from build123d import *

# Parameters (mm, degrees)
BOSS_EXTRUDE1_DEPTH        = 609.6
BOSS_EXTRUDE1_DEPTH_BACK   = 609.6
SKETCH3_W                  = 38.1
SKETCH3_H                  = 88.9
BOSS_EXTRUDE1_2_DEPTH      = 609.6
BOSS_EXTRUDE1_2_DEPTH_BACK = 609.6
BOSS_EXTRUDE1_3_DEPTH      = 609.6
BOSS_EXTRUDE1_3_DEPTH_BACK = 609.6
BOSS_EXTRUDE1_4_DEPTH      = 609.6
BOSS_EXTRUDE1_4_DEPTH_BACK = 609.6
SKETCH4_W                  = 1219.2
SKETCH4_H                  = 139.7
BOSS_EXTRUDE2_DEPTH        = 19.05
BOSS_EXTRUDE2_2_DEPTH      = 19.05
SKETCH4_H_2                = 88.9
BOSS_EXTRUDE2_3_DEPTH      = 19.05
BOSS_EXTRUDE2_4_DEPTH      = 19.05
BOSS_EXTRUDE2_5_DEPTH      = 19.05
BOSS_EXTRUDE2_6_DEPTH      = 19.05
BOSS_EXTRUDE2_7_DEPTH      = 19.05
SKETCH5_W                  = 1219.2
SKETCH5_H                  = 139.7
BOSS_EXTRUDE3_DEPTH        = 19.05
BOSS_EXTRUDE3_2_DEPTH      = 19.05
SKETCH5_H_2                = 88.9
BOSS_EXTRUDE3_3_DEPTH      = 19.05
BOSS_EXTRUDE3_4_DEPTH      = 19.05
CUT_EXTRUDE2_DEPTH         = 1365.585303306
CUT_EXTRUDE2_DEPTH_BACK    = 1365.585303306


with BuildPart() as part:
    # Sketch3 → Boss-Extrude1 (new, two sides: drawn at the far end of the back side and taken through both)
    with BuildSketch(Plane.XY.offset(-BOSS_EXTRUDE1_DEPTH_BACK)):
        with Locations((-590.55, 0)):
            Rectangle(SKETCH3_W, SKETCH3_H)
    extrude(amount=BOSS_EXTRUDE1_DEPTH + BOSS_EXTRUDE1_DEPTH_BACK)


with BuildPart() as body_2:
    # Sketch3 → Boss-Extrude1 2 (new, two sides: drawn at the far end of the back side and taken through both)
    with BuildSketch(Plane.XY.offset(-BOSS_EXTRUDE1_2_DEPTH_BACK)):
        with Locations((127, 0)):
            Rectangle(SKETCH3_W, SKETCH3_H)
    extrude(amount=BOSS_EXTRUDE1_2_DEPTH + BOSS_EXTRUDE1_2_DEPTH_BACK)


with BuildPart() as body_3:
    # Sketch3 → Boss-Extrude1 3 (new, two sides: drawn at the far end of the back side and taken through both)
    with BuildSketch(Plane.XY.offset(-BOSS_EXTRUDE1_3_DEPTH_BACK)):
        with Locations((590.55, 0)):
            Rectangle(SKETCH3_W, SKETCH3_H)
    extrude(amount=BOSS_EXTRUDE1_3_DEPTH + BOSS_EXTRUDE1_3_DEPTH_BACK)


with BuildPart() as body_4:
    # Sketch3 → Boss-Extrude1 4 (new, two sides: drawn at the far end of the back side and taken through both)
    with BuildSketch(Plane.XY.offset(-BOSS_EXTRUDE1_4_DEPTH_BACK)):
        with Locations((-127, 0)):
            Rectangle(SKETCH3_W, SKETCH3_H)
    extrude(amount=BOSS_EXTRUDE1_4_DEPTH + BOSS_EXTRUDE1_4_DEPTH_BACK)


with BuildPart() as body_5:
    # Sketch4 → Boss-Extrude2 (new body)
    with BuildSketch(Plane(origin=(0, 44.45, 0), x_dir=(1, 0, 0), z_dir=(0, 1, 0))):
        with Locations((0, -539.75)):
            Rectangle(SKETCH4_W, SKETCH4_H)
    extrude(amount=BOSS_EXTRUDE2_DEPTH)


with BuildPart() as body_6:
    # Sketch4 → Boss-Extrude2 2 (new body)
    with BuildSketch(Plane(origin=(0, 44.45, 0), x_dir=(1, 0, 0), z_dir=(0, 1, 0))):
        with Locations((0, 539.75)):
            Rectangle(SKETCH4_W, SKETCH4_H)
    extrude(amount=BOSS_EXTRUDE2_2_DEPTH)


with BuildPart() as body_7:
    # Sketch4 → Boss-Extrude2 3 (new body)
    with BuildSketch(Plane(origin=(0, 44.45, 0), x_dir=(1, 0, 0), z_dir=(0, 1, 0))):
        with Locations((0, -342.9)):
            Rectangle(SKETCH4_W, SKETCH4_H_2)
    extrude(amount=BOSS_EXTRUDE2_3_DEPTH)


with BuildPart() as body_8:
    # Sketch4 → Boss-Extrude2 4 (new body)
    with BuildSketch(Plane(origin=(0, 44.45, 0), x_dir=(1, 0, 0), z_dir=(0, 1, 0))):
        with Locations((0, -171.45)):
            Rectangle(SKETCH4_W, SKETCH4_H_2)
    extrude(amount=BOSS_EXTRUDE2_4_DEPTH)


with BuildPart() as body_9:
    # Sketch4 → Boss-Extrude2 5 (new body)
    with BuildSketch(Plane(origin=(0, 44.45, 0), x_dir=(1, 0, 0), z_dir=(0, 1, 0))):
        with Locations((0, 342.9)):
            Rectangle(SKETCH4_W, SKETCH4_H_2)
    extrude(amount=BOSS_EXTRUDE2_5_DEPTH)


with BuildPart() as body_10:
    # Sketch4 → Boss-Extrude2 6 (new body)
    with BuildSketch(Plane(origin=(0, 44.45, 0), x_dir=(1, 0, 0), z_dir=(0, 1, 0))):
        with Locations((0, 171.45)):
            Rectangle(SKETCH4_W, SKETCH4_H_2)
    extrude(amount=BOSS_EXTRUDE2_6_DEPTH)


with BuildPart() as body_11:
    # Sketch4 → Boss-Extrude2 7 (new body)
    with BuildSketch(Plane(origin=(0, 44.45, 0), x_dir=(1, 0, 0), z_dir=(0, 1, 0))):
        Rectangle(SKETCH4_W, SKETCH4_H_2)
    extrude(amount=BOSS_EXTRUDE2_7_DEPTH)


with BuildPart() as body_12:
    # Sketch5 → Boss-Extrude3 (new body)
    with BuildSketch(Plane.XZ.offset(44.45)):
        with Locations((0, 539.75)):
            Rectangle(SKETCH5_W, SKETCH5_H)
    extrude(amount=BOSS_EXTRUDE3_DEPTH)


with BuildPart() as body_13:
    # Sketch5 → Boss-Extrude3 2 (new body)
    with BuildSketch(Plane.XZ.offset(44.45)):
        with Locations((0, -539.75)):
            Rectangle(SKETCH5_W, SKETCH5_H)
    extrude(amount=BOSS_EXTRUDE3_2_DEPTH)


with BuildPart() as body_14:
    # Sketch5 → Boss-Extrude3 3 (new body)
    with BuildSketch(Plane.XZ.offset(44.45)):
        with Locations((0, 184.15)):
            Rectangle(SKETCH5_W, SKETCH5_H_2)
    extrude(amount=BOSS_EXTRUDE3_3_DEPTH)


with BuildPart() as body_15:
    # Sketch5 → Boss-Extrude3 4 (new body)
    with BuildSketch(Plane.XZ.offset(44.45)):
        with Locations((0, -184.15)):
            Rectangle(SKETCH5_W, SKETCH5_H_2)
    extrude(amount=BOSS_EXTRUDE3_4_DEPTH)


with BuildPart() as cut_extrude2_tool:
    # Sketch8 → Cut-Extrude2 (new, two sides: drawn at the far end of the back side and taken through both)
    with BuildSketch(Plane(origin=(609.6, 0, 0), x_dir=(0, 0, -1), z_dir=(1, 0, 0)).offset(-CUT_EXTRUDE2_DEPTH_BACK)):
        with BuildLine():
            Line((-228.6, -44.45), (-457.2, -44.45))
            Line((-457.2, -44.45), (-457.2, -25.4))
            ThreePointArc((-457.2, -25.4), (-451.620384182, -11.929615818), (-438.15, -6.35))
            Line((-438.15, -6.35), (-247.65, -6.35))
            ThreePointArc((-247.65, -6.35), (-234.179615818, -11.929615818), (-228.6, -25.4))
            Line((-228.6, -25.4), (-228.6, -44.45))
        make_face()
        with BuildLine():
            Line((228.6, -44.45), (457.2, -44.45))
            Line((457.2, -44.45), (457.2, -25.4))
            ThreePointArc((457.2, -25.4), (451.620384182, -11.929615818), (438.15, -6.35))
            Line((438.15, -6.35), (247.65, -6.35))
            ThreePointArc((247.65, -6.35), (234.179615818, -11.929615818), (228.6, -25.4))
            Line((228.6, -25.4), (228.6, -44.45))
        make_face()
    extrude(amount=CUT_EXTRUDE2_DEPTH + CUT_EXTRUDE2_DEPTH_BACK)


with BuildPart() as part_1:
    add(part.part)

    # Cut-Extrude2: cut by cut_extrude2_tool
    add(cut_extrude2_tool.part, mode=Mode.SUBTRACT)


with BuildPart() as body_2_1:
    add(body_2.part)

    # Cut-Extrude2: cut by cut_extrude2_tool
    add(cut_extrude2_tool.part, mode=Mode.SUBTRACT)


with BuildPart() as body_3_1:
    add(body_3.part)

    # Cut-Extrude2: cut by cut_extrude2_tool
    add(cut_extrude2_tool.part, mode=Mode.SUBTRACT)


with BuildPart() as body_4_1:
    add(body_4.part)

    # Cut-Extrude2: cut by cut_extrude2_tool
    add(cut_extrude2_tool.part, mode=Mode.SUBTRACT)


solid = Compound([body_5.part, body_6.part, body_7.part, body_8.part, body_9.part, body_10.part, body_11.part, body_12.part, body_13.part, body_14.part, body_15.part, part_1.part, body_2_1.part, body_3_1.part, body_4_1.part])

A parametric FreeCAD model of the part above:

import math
import FreeCAD as App
import Part
import Sketcher
from FreeCAD import Vector
Q = App.Units.Quantity


def add_polygon(sketch, points):
    """Adds a closed chain of lines whose ends are joined by coincident constraints."""
    first, n = sketch.GeometryCount, len(points)
    for a, b in zip(points, points[1:] + points[:1]):
        sketch.addGeometry(Part.LineSegment(App.Vector(*a, 0), App.Vector(*b, 0)), False)
    for i in range(n):
        sketch.addConstraint(Sketcher.Constraint("Coincident", first + i, 2, first + (i + 1) % n, 1))

doc = App.newDocument("Part")
params = doc.addObject("Spreadsheet::Sheet", "Params")
for row, (alias, value) in enumerate([
    ("sketch1_width", "1.5 in"),
    ("sketch1_height", "3.5 in"),
    ("pad1_length", "24 in"),
    ("pad1_length2", "24 in"),
    ("sketch2_width", "1.5 in"),
    ("sketch2_height", "3.5 in"),
    ("pad2_length", "24 in"),
    ("pad2_length2", "24 in"),
    ("sketch3_width", "1.5 in"),
    ("sketch3_height", "3.5 in"),
    ("pad3_length", "24 in"),
    ("pad3_length2", "24 in"),
    ("sketch4_width", "1.5 in"),
    ("sketch4_height", "3.5 in"),
    ("pad4_length", "24 in"),
    ("pad4_length2", "24 in"),
    ("sketch5_width", "48 in"),
    ("sketch5_height", "5.5 in"),
    ("pad5_length", "0.75 in"),
    ("sketch6_width", "48 in"),
    ("sketch6_height", "5.5 in"),
    ("pad6_length", "0.75 in"),
    ("sketch7_width", "48 in"),
    ("sketch7_height", "3.5 in"),
    ("pad7_length", "0.75 in"),
    ("sketch8_width", "48 in"),
    ("sketch8_height", "3.5 in"),
    ("pad8_length", "0.75 in"),
    ("sketch9_width", "48 in"),
    ("sketch9_height", "3.5 in"),
    ("pad9_length", "0.75 in"),
    ("sketch10_width", "48 in"),
    ("sketch10_height", "3.5 in"),
    ("pad10_length", "0.75 in"),
    ("sketch11_width", "48 in"),
    ("sketch11_height", "3.5 in"),
    ("pad11_length", "0.75 in"),
    ("sketch12_width", "48 in"),
    ("sketch12_height", "5.5 in"),
    ("pad12_length", "0.75 in"),
    ("sketch13_width", "48 in"),
    ("sketch13_height", "5.5 in"),
    ("pad13_length", "0.75 in"),
    ("sketch14_width", "48 in"),
    ("sketch14_height", "3.5 in"),
    ("pad14_length", "0.75 in"),
    ("sketch15_width", "48 in"),
    ("sketch15_height", "3.5 in"),
    ("pad15_length", "0.75 in"),
    ("sketch16_height", "9 in"),
    ("sketch16_radius", "0.75 in"),
    ("sketch16_width", "0.75 in"),
    ("pad16_length", "1365.585303 mm"),
    ("pad16_length2", "1365.585303 mm"),
], start=1):
    params.set(f"A{row}", alias)
    params.set(f"B{row}", "=" + value)
    params.setAlias(f"B{row}", alias)

body = doc.addObject("PartDesign::Body", "Body")

# Sketch on XY plane
sketch1 = body.newObject("Sketcher::SketchObject", "Sketch")
sketch1.AttachmentSupport = (doc.getObject("XY_Plane"), [""])
sketch1.MapMode = "FlatFace"
add_polygon(sketch1, [(-609.6, 44.45), (-609.6, -44.45), (-571.5, -44.45), (-571.5, 44.45)])  # lines 0-3
sketch1.addConstraint(Sketcher.Constraint("Vertical", 0))
sketch1.addConstraint(Sketcher.Constraint("Horizontal", 1))
sketch1.addConstraint(Sketcher.Constraint("Vertical", 2))
sketch1.addConstraint(Sketcher.Constraint("Horizontal", 3))
sketch1.addConstraint(Sketcher.Constraint("DistanceX", 1, 1, 1, 2, Q("1.5 in")))
sketch1.addConstraint(Sketcher.Constraint("DistanceY", 0, 2, 0, 1, Q("3.5 in")))
sketch1.addConstraint(Sketcher.Constraint("DistanceX", 0, 2, -1, 1, Q("24 in")))
sketch1.addConstraint(Sketcher.Constraint("DistanceY", 0, 2, -1, 1, Q("1.75 in")))
sketch1.setExpression("Constraints[8]", "Params.sketch1_width")
sketch1.setExpression("Constraints[9]", "Params.sketch1_height")
pad1 = body.newObject("PartDesign::Pad", "Pad")
pad1.Profile = sketch1
pad1.Type = "TwoLengths"
pad1.setExpression("Length", "Params.pad1_length")
pad1.setExpression("Length2", "Params.pad1_length2")
body2 = doc.addObject("PartDesign::Body", "Body001")

# Sketch on XY plane
sketch2 = body2.newObject("Sketcher::SketchObject", "Sketch001")
sketch2.AttachmentSupport = (doc.getObject("XY_Plane001"), [""])
sketch2.MapMode = "FlatFace"
add_polygon(sketch2, [(107.95, 44.45), (107.95, -44.45), (146.05, -44.45), (146.05, 44.45)])  # lines 0-3
sketch2.addConstraint(Sketcher.Constraint("Vertical", 0))
sketch2.addConstraint(Sketcher.Constraint("Horizontal", 1))
sketch2.addConstraint(Sketcher.Constraint("Vertical", 2))
sketch2.addConstraint(Sketcher.Constraint("Horizontal", 3))
sketch2.addConstraint(Sketcher.Constraint("DistanceX", 1, 1, 1, 2, Q("1.5 in")))
sketch2.addConstraint(Sketcher.Constraint("DistanceY", 0, 2, 0, 1, Q("3.5 in")))
sketch2.addConstraint(Sketcher.Constraint("DistanceX", -1, 1, 0, 2, Q("4.25 in")))
sketch2.addConstraint(Sketcher.Constraint("DistanceY", 0, 2, -1, 1, Q("1.75 in")))
sketch2.setExpression("Constraints[8]", "Params.sketch2_width")
sketch2.setExpression("Constraints[9]", "Params.sketch2_height")
pad2 = body2.newObject("PartDesign::Pad", "Pad001")
pad2.Profile = sketch2
pad2.Type = "TwoLengths"
pad2.setExpression("Length", "Params.pad2_length")
pad2.setExpression("Length2", "Params.pad2_length2")
body3 = doc.addObject("PartDesign::Body", "Body002")

# Sketch on XY plane
sketch3 = body3.newObject("Sketcher::SketchObject", "Sketch002")
sketch3.AttachmentSupport = (doc.getObject("XY_Plane002"), [""])
sketch3.MapMode = "FlatFace"
add_polygon(sketch3, [(571.5, 44.45), (571.5, -44.45), (609.6, -44.45), (609.6, 44.45)])  # lines 0-3
sketch3.addConstraint(Sketcher.Constraint("Vertical", 0))
sketch3.addConstraint(Sketcher.Constraint("Horizontal", 1))
sketch3.addConstraint(Sketcher.Constraint("Vertical", 2))
sketch3.addConstraint(Sketcher.Constraint("Horizontal", 3))
sketch3.addConstraint(Sketcher.Constraint("DistanceX", 1, 1, 1, 2, Q("1.5 in")))
sketch3.addConstraint(Sketcher.Constraint("DistanceY", 0, 2, 0, 1, Q("3.5 in")))
sketch3.addConstraint(Sketcher.Constraint("DistanceX", -1, 1, 1, 2, Q("24 in")))
sketch3.addConstraint(Sketcher.Constraint("DistanceY", 0, 2, -1, 1, Q("1.75 in")))
sketch3.setExpression("Constraints[8]", "Params.sketch3_width")
sketch3.setExpression("Constraints[9]", "Params.sketch3_height")
pad3 = body3.newObject("PartDesign::Pad", "Pad002")
pad3.Profile = sketch3
pad3.Type = "TwoLengths"
pad3.setExpression("Length", "Params.pad3_length")
pad3.setExpression("Length2", "Params.pad3_length2")
body4 = doc.addObject("PartDesign::Body", "Body003")

# Sketch on XY plane
sketch4 = body4.newObject("Sketcher::SketchObject", "Sketch003")
sketch4.AttachmentSupport = (doc.getObject("XY_Plane003"), [""])
sketch4.MapMode = "FlatFace"
add_polygon(sketch4, [(-146.05, 44.45), (-146.05, -44.45), (-107.95, -44.45), (-107.95, 44.45)])  # lines 0-3
sketch4.addConstraint(Sketcher.Constraint("Vertical", 0))
sketch4.addConstraint(Sketcher.Constraint("Horizontal", 1))
sketch4.addConstraint(Sketcher.Constraint("Vertical", 2))
sketch4.addConstraint(Sketcher.Constraint("Horizontal", 3))
sketch4.addConstraint(Sketcher.Constraint("DistanceX", 1, 1, 1, 2, Q("1.5 in")))
sketch4.addConstraint(Sketcher.Constraint("DistanceY", 0, 2, 0, 1, Q("3.5 in")))
sketch4.addConstraint(Sketcher.Constraint("DistanceX", 0, 2, -1, 1, Q("5.75 in")))
sketch4.addConstraint(Sketcher.Constraint("DistanceY", 0, 2, -1, 1, Q("1.75 in")))
sketch4.setExpression("Constraints[8]", "Params.sketch4_width")
sketch4.setExpression("Constraints[9]", "Params.sketch4_height")
pad4 = body4.newObject("PartDesign::Pad", "Pad003")
pad4.Profile = sketch4
pad4.Type = "TwoLengths"
pad4.setExpression("Length", "Params.pad4_length")
pad4.setExpression("Length2", "Params.pad4_length2")
body5 = doc.addObject("PartDesign::Body", "Body004")

# Sketch on XZ plane
sketch5 = body5.newObject("Sketcher::SketchObject", "Sketch004")
sketch5.AttachmentSupport = (doc.getObject("XZ_Plane004"), [""])
sketch5.MapMode = "FlatFace"
sketch5.AttachmentOffset = App.Placement(Vector(0, 0, -1.75 * 25.4), App.Rotation())
add_polygon(sketch5, [(-609.6, 469.9), (-609.6, 609.6), (609.6, 609.6), (609.6, 469.9)])  # lines 0-3
sketch5.addConstraint(Sketcher.Constraint("Vertical", 0))
sketch5.addConstraint(Sketcher.Constraint("Horizontal", 1))
sketch5.addConstraint(Sketcher.Constraint("Vertical", 2))
sketch5.addConstraint(Sketcher.Constraint("Horizontal", 3))
sketch5.addConstraint(Sketcher.Constraint("DistanceX", 1, 1, 1, 2, Q("48 in")))
sketch5.addConstraint(Sketcher.Constraint("DistanceY", 0, 1, 0, 2, Q("5.5 in")))
sketch5.addConstraint(Sketcher.Constraint("DistanceX", 0, 2, -1, 1, Q("24 in")))
sketch5.addConstraint(Sketcher.Constraint("DistanceY", -1, 1, 0, 2, Q("24 in")))
sketch5.setExpression("Constraints[8]", "Params.sketch5_width")
sketch5.setExpression("Constraints[9]", "Params.sketch5_height")
pad5 = body5.newObject("PartDesign::Pad", "Pad004")
pad5.Profile = sketch5
pad5.setExpression("Length", "Params.pad5_length")
pad5.Reversed = True
body6 = doc.addObject("PartDesign::Body", "Body005")

# Sketch on XZ plane
sketch6 = body6.newObject("Sketcher::SketchObject", "Sketch005")
sketch6.AttachmentSupport = (doc.getObject("XZ_Plane005"), [""])
sketch6.MapMode = "FlatFace"
sketch6.AttachmentOffset = App.Placement(Vector(0, 0, -1.75 * 25.4), App.Rotation())
add_polygon(sketch6, [(-609.6, -609.6), (-609.6, -469.9), (609.6, -469.9), (609.6, -609.6)])  # lines 0-3
sketch6.addConstraint(Sketcher.Constraint("Vertical", 0))
sketch6.addConstraint(Sketcher.Constraint("Horizontal", 1))
sketch6.addConstraint(Sketcher.Constraint("Vertical", 2))
sketch6.addConstraint(Sketcher.Constraint("Horizontal", 3))
sketch6.addConstraint(Sketcher.Constraint("DistanceX", 1, 1, 1, 2, Q("48 in")))
sketch6.addConstraint(Sketcher.Constraint("DistanceY", 0, 1, 0, 2, Q("5.5 in")))
sketch6.addConstraint(Sketcher.Constraint("DistanceX", 0, 2, -1, 1, Q("24 in")))
sketch6.addConstraint(Sketcher.Constraint("DistanceY", 2, 2, -1, 1, Q("24 in")))
sketch6.setExpression("Constraints[8]", "Params.sketch6_width")
sketch6.setExpression("Constraints[9]", "Params.sketch6_height")
pad6 = body6.newObject("PartDesign::Pad", "Pad005")
pad6.Profile = sketch6
pad6.setExpression("Length", "Params.pad6_length")
pad6.Reversed = True
body7 = doc.addObject("PartDesign::Body", "Body006")

# Sketch on XZ plane
sketch7 = body7.newObject("Sketcher::SketchObject", "Sketch006")
sketch7.AttachmentSupport = (doc.getObject("XZ_Plane006"), [""])
sketch7.MapMode = "FlatFace"
sketch7.AttachmentOffset = App.Placement(Vector(0, 0, -1.75 * 25.4), App.Rotation())
add_polygon(sketch7, [(-609.6, 298.45), (-609.6, 387.35), (609.6, 387.35), (609.6, 298.45)])  # lines 0-3
sketch7.addConstraint(Sketcher.Constraint("Vertical", 0))
sketch7.addConstraint(Sketcher.Constraint("Horizontal", 1))
sketch7.addConstraint(Sketcher.Constraint("Vertical", 2))
sketch7.addConstraint(Sketcher.Constraint("Horizontal", 3))
sketch7.addConstraint(Sketcher.Constraint("DistanceX", 1, 1, 1, 2, Q("48 in")))
sketch7.addConstraint(Sketcher.Constraint("DistanceY", 0, 1, 0, 2, Q("3.5 in")))
sketch7.addConstraint(Sketcher.Constraint("DistanceX", 0, 2, -1, 1, Q("24 in")))
sketch7.addConstraint(Sketcher.Constraint("DistanceY", -1, 1, 0, 2, Q("15.25 in")))
sketch7.setExpression("Constraints[8]", "Params.sketch7_width")
sketch7.setExpression("Constraints[9]", "Params.sketch7_height")
pad7 = body7.newObject("PartDesign::Pad", "Pad006")
pad7.Profile = sketch7
pad7.setExpression("Length", "Params.pad7_length")
pad7.Reversed = True
body8 = doc.addObject("PartDesign::Body", "Body007")

# Sketch on XZ plane
sketch8 = body8.newObject("Sketcher::SketchObject", "Sketch007")
sketch8.AttachmentSupport = (doc.getObject("XZ_Plane007"), [""])
sketch8.MapMode = "FlatFace"
sketch8.AttachmentOffset = App.Placement(Vector(0, 0, -1.75 * 25.4), App.Rotation())
add_polygon(sketch8, [(-609.6, 127), (-609.6, 215.9), (609.6, 215.9), (609.6, 127)])  # lines 0-3
sketch8.addConstraint(Sketcher.Constraint("Vertical", 0))
sketch8.addConstraint(Sketcher.Constraint("Horizontal", 1))
sketch8.addConstraint(Sketcher.Constraint("Vertical", 2))
sketch8.addConstraint(Sketcher.Constraint("Horizontal", 3))
sketch8.addConstraint(Sketcher.Constraint("DistanceX", 1, 1, 1, 2, Q("48 in")))
sketch8.addConstraint(Sketcher.Constraint("DistanceY", 0, 1, 0, 2, Q("3.5 in")))
sketch8.addConstraint(Sketcher.Constraint("DistanceX", 0, 2, -1, 1, Q("24 in")))
sketch8.addConstraint(Sketcher.Constraint("DistanceY", -1, 1, 2, 2, Q("5 in")))
sketch8.setExpression("Constraints[8]", "Params.sketch8_width")
sketch8.setExpression("Constraints[9]", "Params.sketch8_height")
pad8 = body8.newObject("PartDesign::Pad", "Pad007")
pad8.Profile = sketch8
pad8.setExpression("Length", "Params.pad8_length")
pad8.Reversed = True
body9 = doc.addObject("PartDesign::Body", "Body008")

# Sketch on XZ plane
sketch9 = body9.newObject("Sketcher::SketchObject", "Sketch008")
sketch9.AttachmentSupport = (doc.getObject("XZ_Plane008"), [""])
sketch9.MapMode = "FlatFace"
sketch9.AttachmentOffset = App.Placement(Vector(0, 0, -1.75 * 25.4), App.Rotation())
add_polygon(sketch9, [(-609.6, -387.35), (-609.6, -298.45), (609.6, -298.45), (609.6, -387.35)])  # lines 0-3
sketch9.addConstraint(Sketcher.Constraint("Vertical", 0))
sketch9.addConstraint(Sketcher.Constraint("Horizontal", 1))
sketch9.addConstraint(Sketcher.Constraint("Vertical", 2))
sketch9.addConstraint(Sketcher.Constraint("Horizontal", 3))
sketch9.addConstraint(Sketcher.Constraint("DistanceX", 1, 1, 1, 2, Q("48 in")))
sketch9.addConstraint(Sketcher.Constraint("DistanceY", 0, 1, 0, 2, Q("3.5 in")))
sketch9.addConstraint(Sketcher.Constraint("DistanceX", 0, 2, -1, 1, Q("24 in")))
sketch9.addConstraint(Sketcher.Constraint("DistanceY", 0, 2, -1, 1, Q("11.75 in")))
sketch9.setExpression("Constraints[8]", "Params.sketch9_width")
sketch9.setExpression("Constraints[9]", "Params.sketch9_height")
pad9 = body9.newObject("PartDesign::Pad", "Pad008")
pad9.Profile = sketch9
pad9.setExpression("Length", "Params.pad9_length")
pad9.Reversed = True
body10 = doc.addObject("PartDesign::Body", "Body009")

# Sketch on XZ plane
sketch10 = body10.newObject("Sketcher::SketchObject", "Sketch009")
sketch10.AttachmentSupport = (doc.getObject("XZ_Plane009"), [""])
sketch10.MapMode = "FlatFace"
sketch10.AttachmentOffset = App.Placement(Vector(0, 0, -1.75 * 25.4), App.Rotation())
add_polygon(sketch10, [(-609.6, -215.9), (-609.6, -127), (609.6, -127), (609.6, -215.9)])  # lines 0-3
sketch10.addConstraint(Sketcher.Constraint("Vertical", 0))
sketch10.addConstraint(Sketcher.Constraint("Horizontal", 1))
sketch10.addConstraint(Sketcher.Constraint("Vertical", 2))
sketch10.addConstraint(Sketcher.Constraint("Horizontal", 3))
sketch10.addConstraint(Sketcher.Constraint("DistanceX", 1, 1, 1, 2, Q("48 in")))
sketch10.addConstraint(Sketcher.Constraint("DistanceY", 0, 1, 0, 2, Q("3.5 in")))
sketch10.addConstraint(Sketcher.Constraint("DistanceX", 0, 2, -1, 1, Q("24 in")))
sketch10.addConstraint(Sketcher.Constraint("DistanceY", 0, 2, -1, 1, Q("5 in")))
sketch10.setExpression("Constraints[8]", "Params.sketch10_width")
sketch10.setExpression("Constraints[9]", "Params.sketch10_height")
pad10 = body10.newObject("PartDesign::Pad", "Pad009")
pad10.Profile = sketch10
pad10.setExpression("Length", "Params.pad10_length")
pad10.Reversed = True
body11 = doc.addObject("PartDesign::Body", "Body010")

# Sketch on XZ plane
sketch11 = body11.newObject("Sketcher::SketchObject", "Sketch010")
sketch11.AttachmentSupport = (doc.getObject("XZ_Plane010"), [""])
sketch11.MapMode = "FlatFace"
sketch11.AttachmentOffset = App.Placement(Vector(0, 0, -1.75 * 25.4), App.Rotation())
add_polygon(sketch11, [(-609.6, -44.45), (-609.6, 44.45), (609.6, 44.45), (609.6, -44.45)])  # lines 0-3
sketch11.addConstraint(Sketcher.Constraint("Vertical", 0))
sketch11.addConstraint(Sketcher.Constraint("Horizontal", 1))
sketch11.addConstraint(Sketcher.Constraint("Vertical", 2))
sketch11.addConstraint(Sketcher.Constraint("Horizontal", 3))
sketch11.addConstraint(Sketcher.Constraint("Symmetric", 0, 2, 2, 2, -1, 1))
sketch11.addConstraint(Sketcher.Constraint("DistanceX", 1, 1, 1, 2, Q("48 in")))
sketch11.addConstraint(Sketcher.Constraint("DistanceY", 0, 1, 0, 2, Q("3.5 in")))
sketch11.setExpression("Constraints[9]", "Params.sketch11_width")
sketch11.setExpression("Constraints[10]", "Params.sketch11_height")
pad11 = body11.newObject("PartDesign::Pad", "Pad010")
pad11.Profile = sketch11
pad11.setExpression("Length", "Params.pad11_length")
pad11.Reversed = True
body12 = doc.addObject("PartDesign::Body", "Body011")

# Sketch on XZ plane
sketch12 = body12.newObject("Sketcher::SketchObject", "Sketch011")
sketch12.AttachmentSupport = (doc.getObject("XZ_Plane011"), [""])
sketch12.MapMode = "FlatFace"
sketch12.AttachmentOffset = App.Placement(Vector(0, 0, 1.75 * 25.4), App.Rotation())
add_polygon(sketch12, [(-609.6, 609.6), (-609.6, 469.9), (609.6, 469.9), (609.6, 609.6)])  # lines 0-3
sketch12.addConstraint(Sketcher.Constraint("Vertical", 0))
sketch12.addConstraint(Sketcher.Constraint("Horizontal", 1))
sketch12.addConstraint(Sketcher.Constraint("Vertical", 2))
sketch12.addConstraint(Sketcher.Constraint("Horizontal", 3))
sketch12.addConstraint(Sketcher.Constraint("DistanceX", 1, 1, 1, 2, Q("48 in")))
sketch12.addConstraint(Sketcher.Constraint("DistanceY", 0, 2, 0, 1, Q("5.5 in")))
sketch12.addConstraint(Sketcher.Constraint("DistanceX", 0, 2, -1, 1, Q("24 in")))
sketch12.addConstraint(Sketcher.Constraint("DistanceY", -1, 1, 2, 2, Q("24 in")))
sketch12.setExpression("Constraints[8]", "Params.sketch12_width")
sketch12.setExpression("Constraints[9]", "Params.sketch12_height")
pad12 = body12.newObject("PartDesign::Pad", "Pad011")
pad12.Profile = sketch12
pad12.setExpression("Length", "Params.pad12_length")
body13 = doc.addObject("PartDesign::Body", "Body012")

# Sketch on XZ plane
sketch13 = body13.newObject("Sketcher::SketchObject", "Sketch012")
sketch13.AttachmentSupport = (doc.getObject("XZ_Plane012"), [""])
sketch13.MapMode = "FlatFace"
sketch13.AttachmentOffset = App.Placement(Vector(0, 0, 1.75 * 25.4), App.Rotation())
add_polygon(sketch13, [(-609.6, -469.9), (-609.6, -609.6), (609.6, -609.6), (609.6, -469.9)])  # lines 0-3
sketch13.addConstraint(Sketcher.Constraint("Vertical", 0))
sketch13.addConstraint(Sketcher.Constraint("Horizontal", 1))
sketch13.addConstraint(Sketcher.Constraint("Vertical", 2))
sketch13.addConstraint(Sketcher.Constraint("Horizontal", 3))
sketch13.addConstraint(Sketcher.Constraint("DistanceX", 1, 1, 1, 2, Q("48 in")))
sketch13.addConstraint(Sketcher.Constraint("DistanceY", 0, 2, 0, 1, Q("5.5 in")))
sketch13.addConstraint(Sketcher.Constraint("DistanceX", 0, 2, -1, 1, Q("24 in")))
sketch13.addConstraint(Sketcher.Constraint("DistanceY", 0, 2, -1, 1, Q("24 in")))
sketch13.setExpression("Constraints[8]", "Params.sketch13_width")
sketch13.setExpression("Constraints[9]", "Params.sketch13_height")
pad13 = body13.newObject("PartDesign::Pad", "Pad012")
pad13.Profile = sketch13
pad13.setExpression("Length", "Params.pad13_length")
body14 = doc.addObject("PartDesign::Body", "Body013")

# Sketch on XZ plane
sketch14 = body14.newObject("Sketcher::SketchObject", "Sketch013")
sketch14.AttachmentSupport = (doc.getObject("XZ_Plane013"), [""])
sketch14.MapMode = "FlatFace"
sketch14.AttachmentOffset = App.Placement(Vector(0, 0, 1.75 * 25.4), App.Rotation())
add_polygon(sketch14, [(-609.6, 228.6), (-609.6, 139.7), (609.6, 139.7), (609.6, 228.6)])  # lines 0-3
sketch14.addConstraint(Sketcher.Constraint("Vertical", 0))
sketch14.addConstraint(Sketcher.Constraint("Horizontal", 1))
sketch14.addConstraint(Sketcher.Constraint("Vertical", 2))
sketch14.addConstraint(Sketcher.Constraint("Horizontal", 3))
sketch14.addConstraint(Sketcher.Constraint("DistanceX", 1, 1, 1, 2, Q("48 in")))
sketch14.addConstraint(Sketcher.Constraint("DistanceY", 0, 2, 0, 1, Q("3.5 in")))
sketch14.addConstraint(Sketcher.Constraint("DistanceX", 0, 2, -1, 1, Q("24 in")))
sketch14.addConstraint(Sketcher.Constraint("DistanceY", -1, 1, 2, 2, Q("9 in")))
sketch14.setExpression("Constraints[8]", "Params.sketch14_width")
sketch14.setExpression("Constraints[9]", "Params.sketch14_height")
pad14 = body14.newObject("PartDesign::Pad", "Pad013")
pad14.Profile = sketch14
pad14.setExpression("Length", "Params.pad14_length")
body15 = doc.addObject("PartDesign::Body", "Body014")

# Sketch on XZ plane
sketch15 = body15.newObject("Sketcher::SketchObject", "Sketch014")
sketch15.AttachmentSupport = (doc.getObject("XZ_Plane014"), [""])
sketch15.MapMode = "FlatFace"
sketch15.AttachmentOffset = App.Placement(Vector(0, 0, 1.75 * 25.4), App.Rotation())
add_polygon(sketch15, [(-609.6, -139.7), (-609.6, -228.6), (609.6, -228.6), (609.6, -139.7)])  # lines 0-3
sketch15.addConstraint(Sketcher.Constraint("Vertical", 0))
sketch15.addConstraint(Sketcher.Constraint("Horizontal", 1))
sketch15.addConstraint(Sketcher.Constraint("Vertical", 2))
sketch15.addConstraint(Sketcher.Constraint("Horizontal", 3))
sketch15.addConstraint(Sketcher.Constraint("DistanceX", 1, 1, 1, 2, Q("48 in")))
sketch15.addConstraint(Sketcher.Constraint("DistanceY", 0, 2, 0, 1, Q("3.5 in")))
sketch15.addConstraint(Sketcher.Constraint("DistanceX", 0, 2, -1, 1, Q("24 in")))
sketch15.addConstraint(Sketcher.Constraint("DistanceY", 0, 2, -1, 1, Q("9 in")))
sketch15.setExpression("Constraints[8]", "Params.sketch15_width")
sketch15.setExpression("Constraints[9]", "Params.sketch15_height")
pad15 = body15.newObject("PartDesign::Pad", "Pad014")
pad15.Profile = sketch15
pad15.setExpression("Length", "Params.pad15_length")
body16 = doc.addObject("PartDesign::Body", "Body015")
body16.AllowCompound = True

# Sketch on YZ plane
sketch16 = body16.newObject("Sketcher::SketchObject", "Sketch015")
sketch16.AttachmentSupport = (doc.getObject("YZ_Plane015"), [""])
sketch16.MapMode = "FlatFace"
sketch16.AttachmentOffset = App.Placement(Vector(0, 0, 24 * 25.4), App.Rotation())
sketch16.addGeometry(Part.LineSegment(Vector(-44.45, 457.2, 0), Vector(-44.45, 228.6, 0)), False)
sketch16.addGeometry(Part.LineSegment(Vector(-44.45, 228.6, 0), Vector(-25.4, 228.6, 0)), False)
sketch16.addGeometry(Part.ArcOfCircle(Part.Circle(Vector(-25.4, 247.65, 0), Vector(0, 0, 1), 19.05), math.radians(-90), math.radians(0)), False)
sketch16.addGeometry(Part.LineSegment(Vector(-6.35, 247.65, 0), Vector(-6.35, 438.15, 0)), False)
sketch16.addGeometry(Part.ArcOfCircle(Part.Circle(Vector(-25.4, 438.15, 0), Vector(0, 0, 1), 19.05), math.radians(0), math.radians(90)), False)
sketch16.addGeometry(Part.LineSegment(Vector(-25.4, 457.2, 0), Vector(-44.45, 457.2, 0)), False)
sketch16.addGeometry(Part.LineSegment(Vector(-44.45, -228.6, 0), Vector(-44.45, -457.2, 0)), False)
sketch16.addGeometry(Part.LineSegment(Vector(-44.45, -457.2, 0), Vector(-25.4, -457.2, 0)), False)
sketch16.addGeometry(Part.ArcOfCircle(Part.Circle(Vector(-25.4, -438.15, 0), Vector(0, 0, 1), 19.05), math.radians(-90), math.radians(0)), False)
sketch16.addGeometry(Part.LineSegment(Vector(-6.35, -438.15, 0), Vector(-6.35, -247.65, 0)), False)
sketch16.addGeometry(Part.ArcOfCircle(Part.Circle(Vector(-25.4, -247.65, 0), Vector(0, 0, 1), 19.05), math.radians(0), math.radians(90)), False)
sketch16.addGeometry(Part.LineSegment(Vector(-25.4, -228.6, 0), Vector(-44.45, -228.6, 0)), False)
sketch16.addConstraint(Sketcher.Constraint("Coincident", 0, 2, 1, 1))
sketch16.addConstraint(Sketcher.Constraint("Tangent", 1, 2, 2, 1))
sketch16.addConstraint(Sketcher.Constraint("Tangent", 2, 2, 3, 1))
sketch16.addConstraint(Sketcher.Constraint("Tangent", 3, 2, 4, 1))
sketch16.addConstraint(Sketcher.Constraint("Tangent", 4, 2, 5, 1))
sketch16.addConstraint(Sketcher.Constraint("Coincident", 5, 2, 0, 1))
sketch16.addConstraint(Sketcher.Constraint("Coincident", 6, 2, 7, 1))
sketch16.addConstraint(Sketcher.Constraint("Tangent", 7, 2, 8, 1))
sketch16.addConstraint(Sketcher.Constraint("Tangent", 8, 2, 9, 1))
sketch16.addConstraint(Sketcher.Constraint("Tangent", 9, 2, 10, 1))
sketch16.addConstraint(Sketcher.Constraint("Tangent", 10, 2, 11, 1))
sketch16.addConstraint(Sketcher.Constraint("Coincident", 11, 2, 6, 1))
sketch16.addConstraint(Sketcher.Constraint("Vertical", 0))
sketch16.addConstraint(Sketcher.Constraint("Horizontal", 1))
sketch16.addConstraint(Sketcher.Constraint("Vertical", 3))
sketch16.addConstraint(Sketcher.Constraint("Horizontal", 5))
sketch16.addConstraint(Sketcher.Constraint("Vertical", 6))
sketch16.addConstraint(Sketcher.Constraint("Horizontal", 7))
sketch16.addConstraint(Sketcher.Constraint("Vertical", 9))
sketch16.addConstraint(Sketcher.Constraint("Horizontal", 11))
sketch16.addConstraint(Sketcher.Constraint("Equal", 2, 4))
sketch16.addConstraint(Sketcher.Constraint("Equal", 4, 8))
sketch16.addConstraint(Sketcher.Constraint("Equal", 8, 10))
sketch16.addConstraint(Sketcher.Constraint("Symmetric", 4, 3, 8, 3, -1))
sketch16.addConstraint(Sketcher.Constraint("Symmetric", 0, 2, 11, 2, -1))
sketch16.addConstraint(Sketcher.Constraint("DistanceY", 0, 2, 0, 1, Q("9 in")))
sketch16.addConstraint(Sketcher.Constraint("Radius", 2, Q("0.75 in")))
sketch16.addConstraint(Sketcher.Constraint("DistanceX", 2, 3, -1, 1, Q("1 in")))
sketch16.addConstraint(Sketcher.Constraint("DistanceY", -1, 1, 0, 2, Q("9 in")))
sketch16.addConstraint(Sketcher.Constraint("DistanceX", 1, 1, 1, 2, Q("0.75 in")))
sketch16.setExpression("Constraints[25]", "Params.sketch16_height")
sketch16.setExpression("Constraints[26]", "Params.sketch16_radius")
sketch16.setExpression("Constraints[29]", "Params.sketch16_width")
pad16 = body16.newObject("PartDesign::Pad", "Pad015")
pad16.Profile = sketch16
pad16.Type = "TwoLengths"
pad16.setExpression("Length", "Params.pad16_length")
pad16.setExpression("Length2", "Params.pad16_length2")
doc.recompute()

body17 = doc.addObject("PartDesign::Body", "Body016")
body17.BaseFeature = body16
boolean = body.newObject("PartDesign::Boolean", "Boolean")
boolean.Type = "Cut"
boolean.addObjects([body17])
doc.recompute()

body18 = doc.addObject("PartDesign::Body", "Body017")
body18.BaseFeature = body16
boolean2 = body2.newObject("PartDesign::Boolean", "Boolean001")
boolean2.Type = "Cut"
boolean2.addObjects([body18])
doc.recompute()

body19 = doc.addObject("PartDesign::Body", "Body018")
body19.BaseFeature = body16
boolean3 = body3.newObject("PartDesign::Boolean", "Boolean002")
boolean3.Type = "Cut"
boolean3.addObjects([body19])
doc.recompute()

boolean4 = body4.newObject("PartDesign::Boolean", "Boolean003")
boolean4.Type = "Cut"
boolean4.addObjects([body16])

doc.recompute()
